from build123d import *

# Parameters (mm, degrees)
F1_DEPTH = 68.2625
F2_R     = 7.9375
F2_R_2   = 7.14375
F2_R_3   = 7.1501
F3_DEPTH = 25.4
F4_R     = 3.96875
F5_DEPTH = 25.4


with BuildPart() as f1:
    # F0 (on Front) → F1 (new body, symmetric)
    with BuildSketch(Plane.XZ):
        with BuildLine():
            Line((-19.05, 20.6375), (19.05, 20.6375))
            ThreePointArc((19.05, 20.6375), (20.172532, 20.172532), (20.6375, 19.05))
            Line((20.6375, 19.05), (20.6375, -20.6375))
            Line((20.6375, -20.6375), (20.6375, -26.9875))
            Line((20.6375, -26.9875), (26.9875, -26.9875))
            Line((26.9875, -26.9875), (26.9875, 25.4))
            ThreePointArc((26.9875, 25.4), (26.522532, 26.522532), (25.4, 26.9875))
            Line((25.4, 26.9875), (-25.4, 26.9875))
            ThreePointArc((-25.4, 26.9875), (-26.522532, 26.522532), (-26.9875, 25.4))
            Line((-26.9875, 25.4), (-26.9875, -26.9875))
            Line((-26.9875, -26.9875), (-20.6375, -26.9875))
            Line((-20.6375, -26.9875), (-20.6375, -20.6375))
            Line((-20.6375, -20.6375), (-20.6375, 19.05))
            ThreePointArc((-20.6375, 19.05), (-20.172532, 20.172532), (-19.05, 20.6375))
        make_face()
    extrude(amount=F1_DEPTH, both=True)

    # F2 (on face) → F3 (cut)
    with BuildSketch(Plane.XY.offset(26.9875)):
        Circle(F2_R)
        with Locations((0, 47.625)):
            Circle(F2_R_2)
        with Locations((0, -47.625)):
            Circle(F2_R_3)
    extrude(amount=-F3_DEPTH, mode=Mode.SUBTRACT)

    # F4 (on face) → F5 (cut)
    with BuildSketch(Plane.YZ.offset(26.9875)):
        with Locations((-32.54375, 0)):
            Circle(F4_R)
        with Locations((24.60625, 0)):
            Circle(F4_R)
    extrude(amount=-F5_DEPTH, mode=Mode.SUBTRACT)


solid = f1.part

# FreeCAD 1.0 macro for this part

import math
import FreeCAD as App
import Part
import Sketcher
Q = App.Units.Quantity

doc = App.newDocument("Part")
body = doc.addObject("PartDesign::Body", "Body")

# Sketch on XZ plane
sketch1 = body.newObject("Sketcher::SketchObject", "Sketch")
sketch1.AttachmentSupport = (doc.getObject("XZ_Plane"), [""])
sketch1.MapMode = "FlatFace"
sketch1.addGeometry([
    Part.LineSegment(App.Vector(-19.1, 20.6, 0), App.Vector(19.1, 20.6, 0)),  # 0
    Part.ArcOfCircle(Part.Circle(App.Vector(19, 19, 0), App.Vector(0, 0, 1), 1.6), math.radians(0), math.radians(90)),  # 1
    Part.LineSegment(App.Vector(20.6, 19.1, 0), App.Vector(20.6, -27, 0)),  # 2
    Part.LineSegment(App.Vector(20.6, -27, 0), App.Vector(27, -27, 0)),  # 3
    Part.LineSegment(App.Vector(27, -27, 0), App.Vector(27, 25.4, 0)),  # 4
    Part.ArcOfCircle(Part.Circle(App.Vector(25.4, 25.4, 0), App.Vector(0, 0, 1), 1.6), math.radians(0), math.radians(90)),  # 5
    Part.LineSegment(App.Vector(25.4, 27, 0), App.Vector(-25.4, 27, 0)),  # 6
    Part.ArcOfCircle(Part.Circle(App.Vector(-25.4, 25.4, 0), App.Vector(0, 0, 1), 1.6), math.radians(90), math.radians(180)),  # 7
    Part.LineSegment(App.Vector(-27, 25.4, 0), App.Vector(-27, -27, 0)),  # 8
    Part.LineSegment(App.Vector(-27, -27, 0), App.Vector(-20.6, -27, 0)),  # 9
    Part.LineSegment(App.Vector(-20.6, -27, 0), App.Vector(-20.6, 19.1, 0)),  # 10
    Part.ArcOfCircle(Part.Circle(App.Vector(-19, 19, 0), App.Vector(0, 0, 1), 1.6), math.radians(90), math.radians(180)),  # 11
], False)
sketch1.addConstraint([
    Sketcher.Constraint("Tangent", 0, 2, 1, 2),
    Sketcher.Constraint("Tangent", 1, 1, 2, 1),
    Sketcher.Constraint("Coincident", 2, 2, 3, 1),
    Sketcher.Constraint("Coincident", 3, 2, 4, 1),
    Sketcher.Constraint("Tangent", 4, 2, 5, 1),
    Sketcher.Constraint("Tangent", 5, 2, 6, 1),
    Sketcher.Constraint("Tangent", 6, 2, 7, 1),
    Sketcher.Constraint("Tangent", 7, 2, 8, 1),
    Sketcher.Constraint("Coincident", 8, 2, 9, 1),
    Sketcher.Constraint("Coincident", 9, 2, 10, 1),
    Sketcher.Constraint("Tangent", 10, 2, 11, 2),
    Sketcher.Constraint("Tangent", 11, 1, 0, 1),
    Sketcher.Constraint("Horizontal", 0),
    Sketcher.Constraint("Vertical", 2),
    Sketcher.Constraint("Horizontal", 3),
    Sketcher.Constraint("Vertical", 4),
    Sketcher.Constraint("Horizontal", 6),
    Sketcher.Constraint("Vertical", 8),
    Sketcher.Constraint("Horizontal", 9),
    Sketcher.Constraint("Vertical", 10),
    Sketcher.Constraint("Equal", 1, 5),
    Sketcher.Constraint("Equal", 5, 7),
    Sketcher.Constraint("Equal", 7, 11),
    Sketcher.Constraint("Symmetric", 3, 2, 8, 2, -2),
    Sketcher.Constraint("Equal", 3, 9),
    Sketcher.Constraint("DistanceX", 6, 2, 6, 1, Q("2 in")),
    Sketcher.Constraint("DistanceX", 0, 1, 0, 2, Q("1.5 in")),
    Sketcher.Constraint("DistanceY", -1, 1, 5, 3, Q("1 in")),
    Sketcher.Constraint("Radius", 1, Q("0.0625 in")),
    Sketcher.Constraint("DistanceY", 2, 2, 2, 1, Q("1.8125 in")),
    Sketcher.Constraint("DistanceY", 4, 1, 4, 2, Q("2.0625 in")),
])
pad1 = body.newObject("PartDesign::Pad", "Pad")
pad1.Profile = sketch1
pad1.Length = Q("5.375 in")
pad1.Midplane = True

# Sketch on XY plane
sketch2 = body.newObject("Sketcher::SketchObject", "Sketch001")
sketch2.AttachmentSupport = (doc.getObject("XY_Plane"), [""])
sketch2.MapMode = "FlatFace"
sketch2.AttachmentOffset = App.Placement(App.Vector(0, 0, 1.0625 * 25.4), App.Rotation())
sketch2.addGeometry([
    Part.Circle(App.Vector(0, 0, 0), App.Vector(0, 0, 1), 8),
    Part.Circle(App.Vector(0, 48, 0), App.Vector(0, 0, 1), 7),
    Part.Circle(App.Vector(0, -48, 0), App.Vector(0, 0, 1), 7),
], False)
sketch2.addConstraint([
    Sketcher.Constraint("Coincident", 0, 3, -1, 1),
    Sketcher.Constraint("Symmetric", 1, 3, 2, 3, -1, 1),
    Sketcher.Constraint("PointOnObject", 1, 3, -2),
    Sketcher.Constraint("Diameter", 0, Q("0.625 in")),
    Sketcher.Constraint("Diameter", 1, Q("0.5625 in")),
    Sketcher.Constraint("Diameter", 2, Q("0.563 in")),
    Sketcher.Constraint("DistanceY", 2, 3, 1, 3, Q("3.75 in")),
])
pocket1 = body.newObject("PartDesign::Pocket", "Pocket")
pocket1.Profile = sketch2
pocket1.Length = Q("1 in")

# Sketch on YZ plane
sketch3 = body.newObject("Sketcher::SketchObject", "Sketch002")
sketch3.AttachmentSupport = (doc.getObject("YZ_Plane"), [""])
sketch3.MapMode = "FlatFace"
sketch3.AttachmentOffset = App.Placement(App.Vector(0, 0, 1.0625 * 25.4), App.Rotation())
sketch3.addGeometry([
    Part.Circle(App.Vector(-32.5, 0, 0), App.Vector(0, 0, 1), 4),
    Part.Circle(App.Vector(24.6, 0, 0), App.Vector(0, 0, 1), 4),
], False)
sketch3.addConstraint([
    Sketcher.Constraint("Equal", 0, 1),
    Sketcher.Constraint("PointOnObject", 0, 3, -1),
    Sketcher.Constraint("PointOnObject", 1, 3, -1),
    Sketcher.Constraint("Diameter", 0, Q("0.3125 in")),
    Sketcher.Constraint("DistanceX", 0, 3, 1, 3, Q("2.25 in")),
    Sketcher.Constraint("DistanceX", 0, 3, -1, 1, Q("1.28125 in")),
])
pocket2 = body.newObject("PartDesign::Pocket", "Pocket001")
pocket2.Profile = sketch3
pocket2.Length = Q("1 in")

doc.recompute()
